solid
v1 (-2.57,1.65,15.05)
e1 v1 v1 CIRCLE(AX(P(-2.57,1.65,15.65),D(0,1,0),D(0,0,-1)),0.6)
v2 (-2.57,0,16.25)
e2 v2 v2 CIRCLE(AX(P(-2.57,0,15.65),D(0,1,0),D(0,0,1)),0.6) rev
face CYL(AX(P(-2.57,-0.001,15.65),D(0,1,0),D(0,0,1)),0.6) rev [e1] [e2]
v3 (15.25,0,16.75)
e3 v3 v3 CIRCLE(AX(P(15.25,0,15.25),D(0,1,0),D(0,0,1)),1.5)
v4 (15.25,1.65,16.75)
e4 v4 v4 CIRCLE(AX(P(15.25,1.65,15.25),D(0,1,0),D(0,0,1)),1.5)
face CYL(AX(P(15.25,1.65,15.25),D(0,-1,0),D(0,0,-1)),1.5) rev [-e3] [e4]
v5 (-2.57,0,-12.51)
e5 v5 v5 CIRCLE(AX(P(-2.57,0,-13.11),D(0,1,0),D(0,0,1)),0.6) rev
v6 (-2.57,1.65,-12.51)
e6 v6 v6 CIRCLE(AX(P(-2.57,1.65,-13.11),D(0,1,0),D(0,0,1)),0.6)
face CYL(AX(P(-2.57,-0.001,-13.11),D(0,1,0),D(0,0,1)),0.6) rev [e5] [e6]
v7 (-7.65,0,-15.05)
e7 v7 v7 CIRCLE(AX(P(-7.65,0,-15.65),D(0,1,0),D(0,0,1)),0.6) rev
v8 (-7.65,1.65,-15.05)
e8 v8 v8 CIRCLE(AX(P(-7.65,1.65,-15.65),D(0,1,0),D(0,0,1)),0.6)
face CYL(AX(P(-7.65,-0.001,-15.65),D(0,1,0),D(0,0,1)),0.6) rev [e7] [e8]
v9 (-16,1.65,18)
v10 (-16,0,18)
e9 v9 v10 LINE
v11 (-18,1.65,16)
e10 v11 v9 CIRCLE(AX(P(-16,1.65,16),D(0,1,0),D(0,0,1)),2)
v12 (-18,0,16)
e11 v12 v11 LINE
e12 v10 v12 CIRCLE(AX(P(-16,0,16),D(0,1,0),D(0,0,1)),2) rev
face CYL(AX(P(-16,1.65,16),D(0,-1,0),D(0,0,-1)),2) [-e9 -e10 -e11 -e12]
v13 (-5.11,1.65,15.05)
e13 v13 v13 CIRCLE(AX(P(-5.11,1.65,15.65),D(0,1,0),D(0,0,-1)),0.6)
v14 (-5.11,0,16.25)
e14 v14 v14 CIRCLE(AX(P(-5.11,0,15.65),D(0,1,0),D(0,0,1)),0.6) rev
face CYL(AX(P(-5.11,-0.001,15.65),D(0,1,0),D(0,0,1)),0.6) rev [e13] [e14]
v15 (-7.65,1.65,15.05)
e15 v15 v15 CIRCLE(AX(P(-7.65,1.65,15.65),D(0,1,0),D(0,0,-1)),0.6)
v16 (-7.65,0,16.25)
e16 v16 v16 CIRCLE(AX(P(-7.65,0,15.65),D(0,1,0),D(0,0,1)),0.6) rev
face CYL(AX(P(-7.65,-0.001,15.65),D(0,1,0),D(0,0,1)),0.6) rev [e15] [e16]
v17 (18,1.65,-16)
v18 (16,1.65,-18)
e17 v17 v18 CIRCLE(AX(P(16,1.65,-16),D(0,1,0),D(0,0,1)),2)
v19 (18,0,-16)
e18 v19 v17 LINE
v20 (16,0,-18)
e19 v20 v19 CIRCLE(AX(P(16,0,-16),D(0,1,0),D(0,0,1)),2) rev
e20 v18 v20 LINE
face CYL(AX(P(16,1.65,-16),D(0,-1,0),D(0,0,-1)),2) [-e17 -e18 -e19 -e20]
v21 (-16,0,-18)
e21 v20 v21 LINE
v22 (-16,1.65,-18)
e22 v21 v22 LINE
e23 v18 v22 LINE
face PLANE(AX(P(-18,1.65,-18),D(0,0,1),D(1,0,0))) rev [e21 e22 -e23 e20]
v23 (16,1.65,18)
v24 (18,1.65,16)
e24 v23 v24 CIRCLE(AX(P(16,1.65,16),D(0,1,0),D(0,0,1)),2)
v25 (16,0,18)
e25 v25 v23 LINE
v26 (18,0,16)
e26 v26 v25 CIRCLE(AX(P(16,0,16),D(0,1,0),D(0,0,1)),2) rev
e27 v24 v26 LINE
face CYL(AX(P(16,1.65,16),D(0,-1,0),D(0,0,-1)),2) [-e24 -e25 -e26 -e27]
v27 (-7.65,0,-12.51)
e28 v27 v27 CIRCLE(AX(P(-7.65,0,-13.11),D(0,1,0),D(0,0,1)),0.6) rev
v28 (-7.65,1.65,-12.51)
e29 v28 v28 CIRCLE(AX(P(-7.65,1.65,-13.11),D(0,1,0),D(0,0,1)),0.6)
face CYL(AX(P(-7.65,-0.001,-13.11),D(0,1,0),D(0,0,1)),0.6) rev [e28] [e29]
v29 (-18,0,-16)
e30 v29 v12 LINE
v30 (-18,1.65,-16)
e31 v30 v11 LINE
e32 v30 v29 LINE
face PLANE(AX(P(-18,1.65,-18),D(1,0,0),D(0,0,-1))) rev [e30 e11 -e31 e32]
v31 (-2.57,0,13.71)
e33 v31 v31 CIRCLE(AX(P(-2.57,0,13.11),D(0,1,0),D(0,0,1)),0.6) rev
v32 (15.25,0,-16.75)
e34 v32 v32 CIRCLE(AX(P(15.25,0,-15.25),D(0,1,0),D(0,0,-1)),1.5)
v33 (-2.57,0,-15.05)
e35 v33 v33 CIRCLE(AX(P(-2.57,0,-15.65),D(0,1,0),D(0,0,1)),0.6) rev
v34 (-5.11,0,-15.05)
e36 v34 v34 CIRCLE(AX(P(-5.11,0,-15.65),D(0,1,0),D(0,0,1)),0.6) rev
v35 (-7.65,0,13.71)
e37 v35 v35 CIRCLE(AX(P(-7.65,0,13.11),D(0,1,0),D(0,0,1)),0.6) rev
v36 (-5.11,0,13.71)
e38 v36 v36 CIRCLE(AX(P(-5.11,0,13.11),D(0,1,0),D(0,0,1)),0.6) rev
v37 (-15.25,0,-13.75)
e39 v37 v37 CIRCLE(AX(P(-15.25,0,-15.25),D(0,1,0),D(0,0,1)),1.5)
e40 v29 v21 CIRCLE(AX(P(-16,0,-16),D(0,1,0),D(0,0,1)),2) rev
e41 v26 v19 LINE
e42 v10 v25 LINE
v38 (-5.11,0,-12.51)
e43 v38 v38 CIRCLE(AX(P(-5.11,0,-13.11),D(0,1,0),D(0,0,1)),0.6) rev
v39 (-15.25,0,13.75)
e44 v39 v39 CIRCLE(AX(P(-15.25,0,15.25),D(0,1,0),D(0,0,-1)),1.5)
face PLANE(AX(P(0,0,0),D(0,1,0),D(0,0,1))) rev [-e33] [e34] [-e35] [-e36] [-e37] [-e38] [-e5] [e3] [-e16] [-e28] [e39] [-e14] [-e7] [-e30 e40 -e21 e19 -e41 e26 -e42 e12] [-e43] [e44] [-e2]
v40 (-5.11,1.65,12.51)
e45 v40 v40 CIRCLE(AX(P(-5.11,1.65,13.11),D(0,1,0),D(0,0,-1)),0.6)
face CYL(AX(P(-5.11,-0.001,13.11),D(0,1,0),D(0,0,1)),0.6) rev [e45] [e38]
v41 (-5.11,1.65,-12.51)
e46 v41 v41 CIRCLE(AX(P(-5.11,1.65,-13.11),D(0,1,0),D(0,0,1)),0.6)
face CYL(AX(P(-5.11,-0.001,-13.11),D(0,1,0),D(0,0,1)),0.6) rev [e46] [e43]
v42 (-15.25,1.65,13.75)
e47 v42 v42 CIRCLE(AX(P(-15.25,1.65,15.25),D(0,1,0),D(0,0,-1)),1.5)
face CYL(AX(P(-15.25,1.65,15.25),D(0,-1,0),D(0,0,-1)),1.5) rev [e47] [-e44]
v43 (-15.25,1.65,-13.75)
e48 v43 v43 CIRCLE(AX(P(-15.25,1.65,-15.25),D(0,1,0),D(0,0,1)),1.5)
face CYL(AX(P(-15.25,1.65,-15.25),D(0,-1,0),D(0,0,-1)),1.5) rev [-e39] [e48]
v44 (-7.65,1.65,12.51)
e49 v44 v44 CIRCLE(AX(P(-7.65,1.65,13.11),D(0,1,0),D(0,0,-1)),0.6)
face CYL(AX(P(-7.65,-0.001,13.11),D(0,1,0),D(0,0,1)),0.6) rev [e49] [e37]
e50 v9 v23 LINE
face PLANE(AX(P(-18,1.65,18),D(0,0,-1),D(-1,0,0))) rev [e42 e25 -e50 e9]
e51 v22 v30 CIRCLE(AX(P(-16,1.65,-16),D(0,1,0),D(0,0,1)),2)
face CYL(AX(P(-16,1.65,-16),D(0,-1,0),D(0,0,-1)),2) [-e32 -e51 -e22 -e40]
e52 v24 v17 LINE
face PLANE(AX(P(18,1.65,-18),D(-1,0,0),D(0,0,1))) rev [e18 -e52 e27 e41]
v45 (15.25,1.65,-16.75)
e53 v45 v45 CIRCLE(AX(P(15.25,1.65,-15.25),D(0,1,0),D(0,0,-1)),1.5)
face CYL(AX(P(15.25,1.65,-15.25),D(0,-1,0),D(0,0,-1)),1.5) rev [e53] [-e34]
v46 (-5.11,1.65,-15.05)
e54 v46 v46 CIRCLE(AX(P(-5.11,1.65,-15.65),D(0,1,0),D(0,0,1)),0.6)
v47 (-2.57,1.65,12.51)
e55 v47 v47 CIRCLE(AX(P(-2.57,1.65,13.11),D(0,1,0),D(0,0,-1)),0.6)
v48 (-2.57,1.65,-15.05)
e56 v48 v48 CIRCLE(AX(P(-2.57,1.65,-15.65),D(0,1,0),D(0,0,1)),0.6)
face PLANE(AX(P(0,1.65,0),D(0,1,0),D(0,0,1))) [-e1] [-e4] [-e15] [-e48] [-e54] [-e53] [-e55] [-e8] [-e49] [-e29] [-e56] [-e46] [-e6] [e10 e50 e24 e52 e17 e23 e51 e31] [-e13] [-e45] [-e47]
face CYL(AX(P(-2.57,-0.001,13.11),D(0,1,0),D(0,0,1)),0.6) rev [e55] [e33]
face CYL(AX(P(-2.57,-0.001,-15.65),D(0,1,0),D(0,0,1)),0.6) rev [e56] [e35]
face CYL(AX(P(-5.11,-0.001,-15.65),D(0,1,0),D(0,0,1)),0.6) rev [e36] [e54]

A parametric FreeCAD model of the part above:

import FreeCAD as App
import Part
import Sketcher

V = App.Vector


def edges_at(feature, points):
    """Names of the edges that pass closest to the given points."""
    edges = feature.Shape.Edges
    near = lambda p: min(range(len(edges)), key=lambda i: edges[i].distToShape(Part.Vertex(*p))[0])
    return sorted({f"Edge{near(p) + 1}" for p in points})


def add_polygon(sketch, points):
    """Adds a closed chain of lines whose ends are joined by coincident constraints."""
    first, n = sketch.GeometryCount, len(points)
    for a, b in zip(points, points[1:] + points[:1]):
        sketch.addGeometry(Part.LineSegment(App.Vector(*a, 0), App.Vector(*b, 0)), False)
    for i in range(n):
        sketch.addConstraint(Sketcher.Constraint("Coincident", first + i, 2, first + (i + 1) % n, 1))

doc = App.newDocument("Part")
params = doc.addObject("Spreadsheet::Sheet", "Params")
for row, (alias, value) in enumerate([
    ("sketch1_diameter", "3 mm"),
    ("sketch1_width", "36 mm"),
    ("pad1_length", "1.65 mm"),
    ("fillet_radius", "2 mm"),
    ("sketch2_diameter", "1.2 mm"),
    ("sketch3_diameter", "1.2 mm"),
    ("sketch4_diameter", "1.2 mm"),
    ("sketch5_diameter", "1.2 mm"),
    ("sketch6_diameter", "1.2 mm"),
    ("sketch7_diameter", "1.2 mm"),
    ("sketch8_diameter", "1.2 mm"),
    ("sketch9_diameter", "1.2 mm"),
    ("sketch10_diameter", "1.2 mm"),
    ("sketch11_diameter", "1.2 mm"),
    ("sketch12_diameter", "1.2 mm"),
    ("sketch13_diameter", "1.2 mm"),
], start=1):
    params.set(f"A{row}", alias)
    params.set(f"B{row}", "=" + value)
    params.setAlias(f"B{row}", alias)

body = doc.addObject("PartDesign::Body", "Body")

sketch1 = body.newObject("Sketcher::SketchObject", "Sketch")
sketch1.AttachmentSupport = (doc.getObject("XZ_Plane"), [""])
sketch1.MapMode = "FlatFace"
add_polygon(sketch1, [(-18, -18), (-18, 18), (18, 18), (18, -18)])
sketch1.addGeometry(Part.Circle(V(-15.2, 15.2, 0), V(0, 0, 1), 1.5), False)
sketch1.addGeometry(Part.Circle(V(15.2, 15.2, 0), V(0, 0, 1), 1.5), False)
sketch1.addGeometry(Part.Circle(V(-15.2, -15.2, 0), V(0, 0, 1), 1.5), False)
sketch1.addGeometry(Part.Circle(V(15.2, -15.2, 0), V(0, 0, 1), 1.5), False)
sketch1.addConstraint(Sketcher.Constraint("Vertical", 0))
sketch1.addConstraint(Sketcher.Constraint("Horizontal", 1))
sketch1.addConstraint(Sketcher.Constraint("Vertical", 2))
sketch1.addConstraint(Sketcher.Constraint("Horizontal", 3))
sketch1.addConstraint(Sketcher.Constraint("Equal", 4, 5))
sketch1.addConstraint(Sketcher.Constraint("Equal", 5, 6))
sketch1.addConstraint(Sketcher.Constraint("Equal", 6, 7))
sketch1.addConstraint(Sketcher.Constraint("Symmetric", 5, 3, 6, 3, -1, 1))
sketch1.addConstraint(Sketcher.Constraint("Symmetric", 4, 3, 7, 3, -1, 1))
sketch1.addConstraint(Sketcher.Constraint("Symmetric", 0, 2, 2, 2, -1, 1))
sketch1.addConstraint(Sketcher.Constraint("Symmetric", 4, 3, 5, 3, -2))
sketch1.addConstraint(Sketcher.Constraint("Equal", 3, 0))
sketch1.addConstraint(Sketcher.Constraint("Diameter", 4, 3.0))
sketch1.addConstraint(Sketcher.Constraint("DistanceX", 1, 1, 1, 2, 36.0))
sketch1.addConstraint(Sketcher.Constraint("DistanceX", 4, 3, 5, 3, 30.5))
sketch1.addConstraint(Sketcher.Constraint("DistanceY", 6, 3, 4, 3, 30.5))
sketch1.setExpression("Constraints[16]", "Params.sketch1_diameter")
sketch1.setExpression("Constraints[17]", "Params.sketch1_width")
pad1 = body.newObject("PartDesign::Pad", "Pad")
pad1.Profile = sketch1
pad1.setExpression("Length", "Params.pad1_length")
pad1.Reversed = True
doc.recompute()

fillet = body.newObject("PartDesign::Fillet", "Fillet")
fillet.Base = (pad1, edges_at(pad1, [
    (18, 0.825, 18),
    (-18, 0.825, 18),
    (-18, 0.825, -18),
    (18, 0.825, -18),
]))
fillet.setExpression("Radius", "Params.fillet_radius")

sketch2 = body.newObject("Sketcher::SketchObject", "Sketch001")
sketch2.AttachmentSupport = (doc.getObject("XZ_Plane"), [""])
sketch2.MapMode = "FlatFace"
sketch2.AttachmentOffset = App.Placement(V(0, 0, -1.65), App.Rotation())
sketch2.addGeometry(Part.Circle(V(-5.1, -15.7, 0), V(0, 0, 1), 0.6), False)
sketch2.addConstraint(Sketcher.Constraint("Diameter", 0, 1.2))
sketch2.addConstraint(Sketcher.Constraint("DistanceX", 0, 3, -1, 1, 5.11))
sketch2.addConstraint(Sketcher.Constraint("DistanceY", 0, 3, -1, 1, 15.65))
sketch2.setExpression("Constraints[0]", "Params.sketch2_diameter")
pocket1 = body.newObject("PartDesign::Pocket", "Pocket")
pocket1.Profile = sketch2
pocket1.Type = "UpToFirst"
pocket1.Reversed = True

sketch3 = body.newObject("Sketcher::SketchObject", "Sketch002")
sketch3.AttachmentSupport = (doc.getObject("XZ_Plane"), [""])
sketch3.MapMode = "FlatFace"
sketch3.AttachmentOffset = App.Placement(V(0, 0, -1.65), App.Rotation())
sketch3.addGeometry(Part.Circle(V(-7.7, -15.7, 0), V(0, 0, 1), 0.6), False)
sketch3.addConstraint(Sketcher.Constraint("Diameter", 0, 1.2))
sketch3.addConstraint(Sketcher.Constraint("DistanceX", 0, 3, -1, 1, 7.65))
sketch3.addConstraint(Sketcher.Constraint("DistanceY", 0, 3, -1, 1, 15.65))
sketch3.setExpression("Constraints[0]", "Params.sketch3_diameter")
pocket2 = body.newObject("PartDesign::Pocket", "Pocket001")
pocket2.Profile = sketch3
pocket2.Type = "UpToFirst"
pocket2.Reversed = True

sketch4 = body.newObject("Sketcher::SketchObject", "Sketch003")
sketch4.AttachmentSupport = (doc.getObject("XZ_Plane"), [""])
sketch4.MapMode = "FlatFace"
sketch4.AttachmentOffset = App.Placement(V(0, 0, -1.65), App.Rotation())
sketch4.addGeometry(Part.Circle(V(-2.6, -15.7, 0), V(0, 0, 1), 0.6), False)
sketch4.addConstraint(Sketcher.Constraint("Diameter", 0, 1.2))
sketch4.addConstraint(Sketcher.Constraint("DistanceX", 0, 3, -1, 1, 2.57))
sketch4.addConstraint(Sketcher.Constraint("DistanceY", 0, 3, -1, 1, 15.65))
sketch4.setExpression("Constraints[0]", "Params.sketch4_diameter")
pocket3 = body.newObject("PartDesign::Pocket", "Pocket002")
pocket3.Profile = sketch4
pocket3.Type = "UpToFirst"
pocket3.Reversed = True

sketch5 = body.newObject("Sketcher::SketchObject", "Sketch004")
sketch5.AttachmentSupport = (doc.getObject("XZ_Plane"), [""])
sketch5.MapMode = "FlatFace"
sketch5.AttachmentOffset = App.Placement(V(0, 0, -1.65), App.Rotation())
sketch5.addGeometry(Part.Circle(V(-5.1, -13.1, 0), V(0, 0, 1), 0.6), False)
sketch5.addConstraint(Sketcher.Constraint("Diameter", 0, 1.2))
sketch5.addConstraint(Sketcher.Constraint("DistanceX", 0, 3, -1, 1, 5.11))
sketch5.addConstraint(Sketcher.Constraint("DistanceY", 0, 3, -1, 1, 13.11))
sketch5.setExpression("Constraints[0]", "Params.sketch5_diameter")
pocket4 = body.newObject("PartDesign::Pocket", "Pocket003")
pocket4.Profile = sketch5
pocket4.Type = "UpToFirst"
pocket4.Reversed = True

sketch6 = body.newObject("Sketcher::SketchObject", "Sketch005")
sketch6.AttachmentSupport = (doc.getObject("XZ_Plane"), [""])
sketch6.MapMode = "FlatFace"
sketch6.AttachmentOffset = App.Placement(V(0, 0, -1.65), App.Rotation())
sketch6.addGeometry(Part.Circle(V(-2.6, -13.1, 0), V(0, 0, 1), 0.6), False)
sketch6.addConstraint(Sketcher.Constraint("Diameter", 0, 1.2))
sketch6.addConstraint(Sketcher.Constraint("DistanceX", 0, 3, -1, 1, 2.57))
sketch6.addConstraint(Sketcher.Constraint("DistanceY", 0, 3, -1, 1, 13.11))
sketch6.setExpression("Constraints[0]", "Params.sketch6_diameter")
pocket5 = body.newObject("PartDesign::Pocket", "Pocket004")
pocket5.Profile = sketch6
pocket5.Type = "UpToFirst"
pocket5.Reversed = True

sketch7 = body.newObject("Sketcher::SketchObject", "Sketch006")
sketch7.AttachmentSupport = (doc.getObject("XZ_Plane"), [""])
sketch7.MapMode = "FlatFace"
sketch7.AttachmentOffset = App.Placement(V(0, 0, -1.65), App.Rotation())
sketch7.addGeometry(Part.Circle(V(-7.7, -13.1, 0), V(0, 0, 1), 0.6), False)
sketch7.addConstraint(Sketcher.Constraint("Diameter", 0, 1.2))
sketch7.addConstraint(Sketcher.Constraint("DistanceX", 0, 3, -1, 1, 7.65))
sketch7.addConstraint(Sketcher.Constraint("DistanceY", 0, 3, -1, 1, 13.11))
sketch7.setExpression("Constraints[0]", "Params.sketch7_diameter")
pocket6 = body.newObject("PartDesign::Pocket", "Pocket005")
pocket6.Profile = sketch7
pocket6.Type = "UpToFirst"
pocket6.Reversed = True

sketch8 = body.newObject("Sketcher::SketchObject", "Sketch007")
sketch8.AttachmentSupport = (doc.getObject("XZ_Plane"), [""])
sketch8.MapMode = "FlatFace"
sketch8.AttachmentOffset = App.Placement(V(0, 0, -1.65), App.Rotation())
sketch8.addGeometry(Part.Circle(V(-2.6, 13.1, 0), V(0, 0, 1), 0.6), False)
sketch8.addConstraint(Sketcher.Constraint("Diameter", 0, 1.2))
sketch8.addConstraint(Sketcher.Constraint("DistanceX", 0, 3, -1, 1, 2.57))
sketch8.addConstraint(Sketcher.Constraint("DistanceY", -1, 1, 0, 3, 13.11))
sketch8.setExpression("Constraints[0]", "Params.sketch8_diameter")
pocket7 = body.newObject("PartDesign::Pocket", "Pocket006")
pocket7.Profile = sketch8
pocket7.Type = "UpToFirst"
pocket7.Reversed = True

sketch9 = body.newObject("Sketcher::SketchObject", "Sketch008")
sketch9.AttachmentSupport = (doc.getObject("XZ_Plane"), [""])
sketch9.MapMode = "FlatFace"
sketch9.AttachmentOffset = App.Placement(V(0, 0, -1.65), App.Rotation())
sketch9.addGeometry(Part.Circle(V(-2.6, 15.7, 0), V(0, 0, 1), 0.6), False)
sketch9.addConstraint(Sketcher.Constraint("Diameter", 0, 1.2))
sketch9.addConstraint(Sketcher.Constraint("DistanceX", 0, 3, -1, 1, 2.57))
sketch9.addConstraint(Sketcher.Constraint("DistanceY", -1, 1, 0, 3, 15.65))
sketch9.setExpression("Constraints[0]", "Params.sketch9_diameter")
pocket8 = body.newObject("PartDesign::Pocket", "Pocket007")
pocket8.Profile = sketch9
pocket8.Type = "UpToFirst"
pocket8.Reversed = True

sketch10 = body.newObject("Sketcher::SketchObject", "Sketch009")
sketch10.AttachmentSupport = (doc.getObject("XZ_Plane"), [""])
sketch10.MapMode = "FlatFace"
sketch10.AttachmentOffset = App.Placement(V(0, 0, -1.65), App.Rotation())
sketch10.addGeometry(Part.Circle(V(-5.1, 13.1, 0), V(0, 0, 1), 0.6), False)
sketch10.addConstraint(Sketcher.Constraint("Diameter", 0, 1.2))
sketch10.addConstraint(Sketcher.Constraint("DistanceX", 0, 3, -1, 1, 5.11))
sketch10.addConstraint(Sketcher.Constraint("DistanceY", -1, 1, 0, 3, 13.11))
sketch10.setExpression("Constraints[0]", "Params.sketch10_diameter")
pocket9 = body.newObject("PartDesign::Pocket", "Pocket008")
pocket9.Profile = sketch10
pocket9.Type = "UpToFirst"
pocket9.Reversed = True

sketch11 = body.newObject("Sketcher::SketchObject", "Sketch010")
sketch11.AttachmentSupport = (doc.getObject("XZ_Plane"), [""])
sketch11.MapMode = "FlatFace"
sketch11.AttachmentOffset = App.Placement(V(0, 0, -1.65), App.Rotation())
sketch11.addGeometry(Part.Circle(V(-5.1, 15.7, 0), V(0, 0, 1), 0.6), False)
sketch11.addConstraint(Sketcher.Constraint("Diameter", 0, 1.2))
sketch11.addConstraint(Sketcher.Constraint("DistanceX", 0, 3, -1, 1, 5.11))
sketch11.addConstraint(Sketcher.Constraint("DistanceY", -1, 1, 0, 3, 15.65))
sketch11.setExpression("Constraints[0]", "Params.sketch11_diameter")
pocket10 = body.newObject("PartDesign::Pocket", "Pocket009")
pocket10.Profile = sketch11
pocket10.Type = "UpToFirst"
pocket10.Reversed = True

sketch12 = body.newObject("Sketcher::SketchObject", "Sketch011")
sketch12.AttachmentSupport = (doc.getObject("XZ_Plane"), [""])
sketch12.MapMode = "FlatFace"
sketch12.AttachmentOffset = App.Placement(V(0, 0, -1.65), App.Rotation())
sketch12.addGeometry(Part.Circle(V(-7.7, 13.1, 0), V(0, 0, 1), 0.6), False)
sketch12.addConstraint(Sketcher.Constraint("Diameter", 0, 1.2))
sketch12.addConstraint(Sketcher.Constraint("DistanceX", 0, 3, -1, 1, 7.65))
sketch12.addConstraint(Sketcher.Constraint("DistanceY", -1, 1, 0, 3, 13.11))
sketch12.setExpression("Constraints[0]", "Params.sketch12_diameter")
pocket11 = body.newObject("PartDesign::Pocket", "Pocket010")
pocket11.Profile = sketch12
pocket11.Type = "UpToFirst"
pocket11.Reversed = True

sketch13 = body.newObject("Sketcher::SketchObject", "Sketch012")
sketch13.AttachmentSupport = (doc.getObject("XZ_Plane"), [""])
sketch13.MapMode = "FlatFace"
sketch13.AttachmentOffset = App.Placement(V(0, 0, -1.65), App.Rotation())
sketch13.addGeometry(Part.Circle(V(-7.7, 15.7, 0), V(0, 0, 1), 0.6), False)
sketch13.addConstraint(Sketcher.Constraint("Diameter", 0, 1.2))
sketch13.addConstraint(Sketcher.Constraint("DistanceX", 0, 3, -1, 1, 7.65))
sketch13.addConstraint(Sketcher.Constraint("DistanceY", -1, 1, 0, 3, 15.65))
sketch13.setExpression("Constraints[0]", "Params.sketch13_diameter")
pocket12 = body.newObject("PartDesign::Pocket", "Pocket011")
pocket12.Profile = sketch13
pocket12.Type = "UpToFirst"
pocket12.Reversed = True

doc.recompute()
